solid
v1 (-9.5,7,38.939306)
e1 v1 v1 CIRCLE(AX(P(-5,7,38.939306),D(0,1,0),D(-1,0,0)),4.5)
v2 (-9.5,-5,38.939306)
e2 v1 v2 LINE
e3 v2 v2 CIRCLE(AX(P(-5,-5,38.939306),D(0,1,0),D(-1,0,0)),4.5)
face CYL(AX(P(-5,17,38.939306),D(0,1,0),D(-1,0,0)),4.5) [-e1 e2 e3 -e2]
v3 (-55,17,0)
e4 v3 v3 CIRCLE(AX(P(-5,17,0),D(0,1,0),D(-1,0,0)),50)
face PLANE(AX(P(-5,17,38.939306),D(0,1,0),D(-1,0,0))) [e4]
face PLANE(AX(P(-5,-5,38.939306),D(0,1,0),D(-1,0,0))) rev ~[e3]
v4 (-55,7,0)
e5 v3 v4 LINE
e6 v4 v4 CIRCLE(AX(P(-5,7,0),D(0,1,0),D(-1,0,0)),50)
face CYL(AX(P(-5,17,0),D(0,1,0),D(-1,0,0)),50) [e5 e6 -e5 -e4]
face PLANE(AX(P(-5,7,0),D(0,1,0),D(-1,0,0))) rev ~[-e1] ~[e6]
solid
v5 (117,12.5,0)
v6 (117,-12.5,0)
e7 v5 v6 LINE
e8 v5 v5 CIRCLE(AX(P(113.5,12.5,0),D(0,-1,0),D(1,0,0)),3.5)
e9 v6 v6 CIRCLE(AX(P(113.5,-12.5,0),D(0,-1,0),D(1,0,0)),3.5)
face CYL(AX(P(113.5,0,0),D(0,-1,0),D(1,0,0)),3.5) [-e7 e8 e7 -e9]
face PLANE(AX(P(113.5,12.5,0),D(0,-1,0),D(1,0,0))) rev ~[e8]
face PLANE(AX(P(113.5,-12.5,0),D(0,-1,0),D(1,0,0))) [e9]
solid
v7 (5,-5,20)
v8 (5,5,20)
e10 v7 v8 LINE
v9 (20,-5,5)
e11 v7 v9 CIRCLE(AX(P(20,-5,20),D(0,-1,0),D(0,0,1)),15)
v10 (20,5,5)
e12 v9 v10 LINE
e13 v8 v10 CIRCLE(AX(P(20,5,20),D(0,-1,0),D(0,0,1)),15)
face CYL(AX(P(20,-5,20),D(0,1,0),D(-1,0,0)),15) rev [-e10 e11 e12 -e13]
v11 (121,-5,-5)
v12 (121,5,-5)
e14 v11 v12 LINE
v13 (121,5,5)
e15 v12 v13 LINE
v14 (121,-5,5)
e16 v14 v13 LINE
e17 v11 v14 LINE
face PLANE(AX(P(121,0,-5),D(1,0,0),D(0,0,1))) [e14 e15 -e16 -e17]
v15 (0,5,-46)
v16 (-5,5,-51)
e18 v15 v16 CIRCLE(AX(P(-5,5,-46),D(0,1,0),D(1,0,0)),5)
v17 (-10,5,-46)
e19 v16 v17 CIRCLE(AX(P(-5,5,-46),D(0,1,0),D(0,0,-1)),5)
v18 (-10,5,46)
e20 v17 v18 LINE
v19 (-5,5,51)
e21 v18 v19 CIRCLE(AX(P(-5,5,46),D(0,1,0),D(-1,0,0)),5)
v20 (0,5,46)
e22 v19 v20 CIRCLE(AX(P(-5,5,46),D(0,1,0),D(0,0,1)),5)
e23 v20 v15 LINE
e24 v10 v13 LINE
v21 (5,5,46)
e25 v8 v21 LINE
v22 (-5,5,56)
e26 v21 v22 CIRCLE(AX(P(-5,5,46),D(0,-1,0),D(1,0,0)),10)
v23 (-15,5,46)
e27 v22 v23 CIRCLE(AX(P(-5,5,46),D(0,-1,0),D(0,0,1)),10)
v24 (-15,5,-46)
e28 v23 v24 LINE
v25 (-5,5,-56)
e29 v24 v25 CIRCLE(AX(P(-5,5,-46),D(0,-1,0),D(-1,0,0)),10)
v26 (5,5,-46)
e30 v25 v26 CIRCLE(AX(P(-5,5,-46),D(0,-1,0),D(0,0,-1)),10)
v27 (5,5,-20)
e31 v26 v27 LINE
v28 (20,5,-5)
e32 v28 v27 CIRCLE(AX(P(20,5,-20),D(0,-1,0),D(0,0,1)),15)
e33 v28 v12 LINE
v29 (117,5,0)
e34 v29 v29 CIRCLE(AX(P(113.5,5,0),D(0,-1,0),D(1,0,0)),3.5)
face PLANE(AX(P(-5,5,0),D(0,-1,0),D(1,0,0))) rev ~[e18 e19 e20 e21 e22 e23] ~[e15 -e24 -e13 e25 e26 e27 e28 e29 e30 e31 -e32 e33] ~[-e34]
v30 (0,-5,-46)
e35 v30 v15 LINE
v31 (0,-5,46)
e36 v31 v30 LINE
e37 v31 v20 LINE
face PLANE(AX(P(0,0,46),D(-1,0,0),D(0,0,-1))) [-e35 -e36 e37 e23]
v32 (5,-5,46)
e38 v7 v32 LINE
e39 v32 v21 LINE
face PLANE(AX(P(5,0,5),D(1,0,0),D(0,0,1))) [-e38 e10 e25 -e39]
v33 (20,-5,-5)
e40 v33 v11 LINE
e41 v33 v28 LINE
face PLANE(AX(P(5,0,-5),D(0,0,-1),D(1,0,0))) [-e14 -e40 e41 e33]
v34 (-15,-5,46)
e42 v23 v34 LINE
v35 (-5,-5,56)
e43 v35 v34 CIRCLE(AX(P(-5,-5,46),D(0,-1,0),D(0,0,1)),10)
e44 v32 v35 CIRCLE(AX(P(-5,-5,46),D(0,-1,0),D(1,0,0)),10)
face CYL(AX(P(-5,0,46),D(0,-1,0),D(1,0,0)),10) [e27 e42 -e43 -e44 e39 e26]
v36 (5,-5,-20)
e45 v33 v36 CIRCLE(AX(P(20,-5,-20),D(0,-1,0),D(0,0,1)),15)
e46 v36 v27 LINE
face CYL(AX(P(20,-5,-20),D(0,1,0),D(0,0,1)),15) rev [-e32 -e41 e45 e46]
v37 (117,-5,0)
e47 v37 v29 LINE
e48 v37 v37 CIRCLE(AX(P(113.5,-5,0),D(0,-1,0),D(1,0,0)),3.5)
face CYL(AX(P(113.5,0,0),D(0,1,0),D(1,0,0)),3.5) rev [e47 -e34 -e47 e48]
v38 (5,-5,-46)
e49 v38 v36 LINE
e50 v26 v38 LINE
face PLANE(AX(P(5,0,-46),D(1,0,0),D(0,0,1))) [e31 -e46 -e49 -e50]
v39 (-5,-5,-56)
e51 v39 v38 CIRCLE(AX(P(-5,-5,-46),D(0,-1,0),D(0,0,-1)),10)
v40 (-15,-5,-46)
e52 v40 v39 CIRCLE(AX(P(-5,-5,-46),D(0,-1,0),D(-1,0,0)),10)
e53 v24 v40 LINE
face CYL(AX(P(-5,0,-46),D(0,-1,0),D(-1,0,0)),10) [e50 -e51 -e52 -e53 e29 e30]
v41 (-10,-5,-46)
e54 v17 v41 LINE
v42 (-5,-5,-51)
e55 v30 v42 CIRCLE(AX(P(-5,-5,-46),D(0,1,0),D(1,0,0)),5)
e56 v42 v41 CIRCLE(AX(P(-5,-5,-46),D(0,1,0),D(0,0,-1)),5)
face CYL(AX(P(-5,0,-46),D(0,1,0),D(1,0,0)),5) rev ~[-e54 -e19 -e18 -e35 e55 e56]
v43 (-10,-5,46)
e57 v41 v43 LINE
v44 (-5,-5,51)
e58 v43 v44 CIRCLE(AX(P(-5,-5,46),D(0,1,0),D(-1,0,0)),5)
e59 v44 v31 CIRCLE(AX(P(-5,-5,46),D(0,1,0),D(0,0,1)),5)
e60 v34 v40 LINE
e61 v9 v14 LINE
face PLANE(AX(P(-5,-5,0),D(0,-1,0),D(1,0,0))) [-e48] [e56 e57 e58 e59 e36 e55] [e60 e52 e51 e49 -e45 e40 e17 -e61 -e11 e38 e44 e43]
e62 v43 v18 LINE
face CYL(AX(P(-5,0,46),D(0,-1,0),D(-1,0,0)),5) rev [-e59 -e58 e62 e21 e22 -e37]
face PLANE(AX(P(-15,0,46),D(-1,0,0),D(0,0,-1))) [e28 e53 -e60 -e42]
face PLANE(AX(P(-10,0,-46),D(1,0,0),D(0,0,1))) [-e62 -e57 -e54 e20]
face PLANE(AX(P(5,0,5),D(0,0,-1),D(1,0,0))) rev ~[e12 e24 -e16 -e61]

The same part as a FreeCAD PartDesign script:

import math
import FreeCAD as App
import Part
import Sketcher
Q = App.Units.Quantity


def edges_at(feature, points):
    """Names of the edges that pass closest to the given points."""
    edges = feature.Shape.Edges
    near = lambda p: min(range(len(edges)), key=lambda i: edges[i].distToShape(Part.Vertex(*p))[0])
    return sorted({f"Edge{near(p) + 1}" for p in points})

doc = App.newDocument("Part")
params = doc.addObject("Spreadsheet::Sheet", "Params")
for row, (alias, value) in enumerate([
    ("sketch1_diameter", "7 mm"),
    ("sketch1_radius", "10 mm"),
    ("sketch1_radius2", "5 mm"),
    ("sketch1_width", "116 mm"),
    ("sketch1_height", "92 mm"),
    ("pad1_length", "10 mm"),
    ("fillet_radius", "15 mm"),
    ("sketch2_diameter", "100 mm"),
    ("pad2_length", "10 mm"),
    ("sketch3_diameter", "9 mm"),
    ("pad3_length", "22 mm"),
    ("sketch4_diameter", "7 mm"),
    ("pad4_length", "25 mm"),
], start=1):
    params.set(f"A{row}", alias)
    params.set(f"B{row}", "=" + value)
    params.setAlias(f"B{row}", alias)

body = doc.addObject("PartDesign::Body", "Body")

sketch1 = body.newObject("Sketcher::SketchObject", "Sketch")
sketch1.AttachmentSupport = (doc.getObject("XZ_Plane"), [""])
sketch1.MapMode = "FlatFace"
sketch1.addGeometry(Part.ArcOfCircle(Part.Circle(App.Vector(-5, 46, 0), App.Vector(0, 0, 1), 10), math.radians(0), math.radians(90)), False)
sketch1.addGeometry(Part.ArcOfCircle(Part.Circle(App.Vector(-5, 46, 0), App.Vector(0, 0, 1), 10), math.radians(90), math.radians(180)), False)
sketch1.addGeometry(Part.LineSegment(App.Vector(-15, 46, 0), App.Vector(-15, -46, 0)), False)
sketch1.addGeometry(Part.ArcOfCircle(Part.Circle(App.Vector(-5, -46, 0), App.Vector(0, 0, 1), 10), math.radians(180), math.radians(270)), False)
sketch1.addGeometry(Part.ArcOfCircle(Part.Circle(App.Vector(-5, -46, 0), App.Vector(0, 0, 1), 10), math.radians(-90), math.radians(0)), False)
sketch1.addGeometry(Part.LineSegment(App.Vector(5, -46, 0), App.Vector(5, -5, 0)), False)
sketch1.addGeometry(Part.LineSegment(App.Vector(5, -5, 0), App.Vector(121, -5, 0)), False)
sketch1.addGeometry(Part.LineSegment(App.Vector(121, -5, 0), App.Vector(121, 5, 0)), False)
sketch1.addGeometry(Part.LineSegment(App.Vector(121, 5, 0), App.Vector(5, 5, 0)), False)
sketch1.addGeometry(Part.LineSegment(App.Vector(5, 5, 0), App.Vector(5, 46, 0)), False)
sketch1.addGeometry(Part.ArcOfCircle(Part.Circle(App.Vector(-5, 46, 0), App.Vector(0, 0, 1), 5), math.radians(90), math.radians(180)), False)
sketch1.addGeometry(Part.ArcOfCircle(Part.Circle(App.Vector(-5, 46, 0), App.Vector(0, 0, 1), 5), math.radians(0), math.radians(90)), False)
sketch1.addGeometry(Part.LineSegment(App.Vector(0, 46, 0), App.Vector(0, -46, 0)), False)
sketch1.addGeometry(Part.ArcOfCircle(Part.Circle(App.Vector(-5, -46, 0), App.Vector(0, 0, 1), 5), math.radians(-90), math.radians(0)), False)
sketch1.addGeometry(Part.ArcOfCircle(Part.Circle(App.Vector(-5, -46, 0), App.Vector(0, 0, 1), 5), math.radians(180), math.radians(270)), False)
sketch1.addGeometry(Part.LineSegment(App.Vector(-10, -46, 0), App.Vector(-10, 46, 0)), False)
sketch1.addGeometry(Part.Circle(App.Vector(113.5, 0, 0), App.Vector(0, 0, 1), 3.5), False)
sketch1.addConstraint(Sketcher.Constraint("Tangent", 0, 2, 1, 1))
sketch1.addConstraint(Sketcher.Constraint("Tangent", 1, 2, 2, 1))
sketch1.addConstraint(Sketcher.Constraint("Tangent", 2, 2, 3, 1))
sketch1.addConstraint(Sketcher.Constraint("Tangent", 3, 2, 4, 1))
sketch1.addConstraint(Sketcher.Constraint("Tangent", 4, 2, 5, 1))
sketch1.addConstraint(Sketcher.Constraint("Coincident", 5, 2, 6, 1))
sketch1.addConstraint(Sketcher.Constraint("Coincident", 6, 2, 7, 1))
sketch1.addConstraint(Sketcher.Constraint("Coincident", 7, 2, 8, 1))
sketch1.addConstraint(Sketcher.Constraint("Coincident", 8, 2, 9, 1))
sketch1.addConstraint(Sketcher.Constraint("Tangent", 9, 2, 0, 1))
sketch1.addConstraint(Sketcher.Constraint("Tangent", 10, 1, 11, 2))
sketch1.addConstraint(Sketcher.Constraint("Tangent", 11, 1, 12, 1))
sketch1.addConstraint(Sketcher.Constraint("Tangent", 12, 2, 13, 2))
sketch1.addConstraint(Sketcher.Constraint("Tangent", 13, 1, 14, 2))
sketch1.addConstraint(Sketcher.Constraint("Tangent", 14, 1, 15, 1))
sketch1.addConstraint(Sketcher.Constraint("Tangent", 15, 2, 10, 2))
sketch1.addConstraint(Sketcher.Constraint("Vertical", 2))
sketch1.addConstraint(Sketcher.Constraint("Vertical", 5))
sketch1.addConstraint(Sketcher.Constraint("Horizontal", 6))
sketch1.addConstraint(Sketcher.Constraint("Vertical", 7))
sketch1.addConstraint(Sketcher.Constraint("Horizontal", 8))
sketch1.addConstraint(Sketcher.Constraint("Vertical", 9))
sketch1.addConstraint(Sketcher.Constraint("Vertical", 12))
sketch1.addConstraint(Sketcher.Constraint("Vertical", 15))
sketch1.addConstraint(Sketcher.Constraint("Coincident", 10, 3, 0, 3))
sketch1.addConstraint(Sketcher.Constraint("Coincident", 13, 3, 3, 3))
sketch1.addConstraint(Sketcher.Constraint("Equal", 0, 1))
sketch1.addConstraint(Sketcher.Constraint("Equal", 1, 3))
sketch1.addConstraint(Sketcher.Constraint("Equal", 3, 4))
sketch1.addConstraint(Sketcher.Constraint("Equal", 10, 11))
sketch1.addConstraint(Sketcher.Constraint("Symmetric", 11, 1, 12, 2, -1, 1))
sketch1.addConstraint(Sketcher.Constraint("PointOnObject", 16, 3, -1))
sketch1.addConstraint(Sketcher.Constraint("Vertical", 14, 3, 0, 2))
sketch1.addConstraint(Sketcher.Constraint("Vertical", 0, 2, 3, 2))
sketch1.addConstraint(Sketcher.Constraint("Vertical", 3, 2, 10, 1))
sketch1.addConstraint(Sketcher.Constraint("Vertical", 10, 1, 13, 1))
sketch1.addConstraint(Sketcher.Constraint("Equal", 5, 9))
sketch1.addConstraint(Sketcher.Constraint("Diameter", 16, Q("7 mm")))
sketch1.addConstraint(Sketcher.Constraint("Radius", 0, Q("10 mm")))
sketch1.addConstraint(Sketcher.Constraint("Radius", 10, Q("5 mm")))
sketch1.addConstraint(Sketcher.Constraint("DistanceX", 6, 1, 6, 2, Q("116 mm")))
sketch1.addConstraint(Sketcher.Constraint("DistanceY", 2, 2, 2, 1, Q("92 mm")))
sketch1.addConstraint(Sketcher.Constraint("DistanceY", 5, 1, 5, 2, Q("41 mm")))
sketch1.addConstraint(Sketcher.Constraint("DistanceX", -1, 1, 16, 3, Q("113.5 mm")))
sketch1.setExpression("Constraints[37]", "Params.sketch1_diameter")
sketch1.setExpression("Constraints[38]", "Params.sketch1_radius")
sketch1.setExpression("Constraints[39]", "Params.sketch1_radius2")
sketch1.setExpression("Constraints[40]", "Params.sketch1_width")
sketch1.setExpression("Constraints[41]", "Params.sketch1_height")
pad1 = body.newObject("PartDesign::Pad", "Pad")
pad1.Profile = sketch1
pad1.setExpression("Length", "Params.pad1_length")
pad1.Midplane = True
doc.recompute()

fillet = body.newObject("PartDesign::Fillet", "Fillet")
fillet.Base = (pad1, edges_at(pad1, [(5, 0, 5), (5, 0, -5)]))
fillet.setExpression("Radius", "Params.fillet_radius")
body2 = doc.addObject("PartDesign::Body", "Body001")

sketch2 = body2.newObject("Sketcher::SketchObject", "Sketch001")
sketch2.AttachmentSupport = (doc.getObject("XZ_Plane001"), [""])
sketch2.MapMode = "FlatFace"
sketch2.AttachmentOffset = App.Placement(App.Vector(0, 0, -17), App.Rotation())
sketch2.addGeometry(Part.Circle(App.Vector(-5, 0, 0), App.Vector(0, 0, 1), 50), False)
sketch2.addConstraint(Sketcher.Constraint("PointOnObject", 0, 3, -1))
sketch2.addConstraint(Sketcher.Constraint("Diameter", 0, Q("100 mm")))
sketch2.addConstraint(Sketcher.Constraint("DistanceX", 0, 3, -1, 1, Q("5 mm")))
sketch2.setExpression("Constraints[1]", "Params.sketch2_diameter")
pad2 = body2.newObject("PartDesign::Pad", "Pad001")
pad2.Profile = sketch2
pad2.setExpression("Length", "Params.pad2_length")

sketch3 = body2.newObject("Sketcher::SketchObject", "Sketch002")
sketch3.AttachmentSupport = (doc.getObject("XZ_Plane001"), [""])
sketch3.MapMode = "FlatFace"
sketch3.AttachmentOffset = App.Placement(App.Vector(0, 0, -17), App.Rotation())
sketch3.addGeometry(Part.Circle(App.Vector(-5, 38.9, 0), App.Vector(0, 0, 1), 4.5), False)
sketch3.addConstraint(Sketcher.Constraint("Diameter", 0, Q("9 mm")))
sketch3.addConstraint(Sketcher.Constraint("DistanceX", 0, 3, -1, 1, Q("5 mm")))
sketch3.addConstraint(Sketcher.Constraint("DistanceY", -1, 1, 0, 3, Q("38.939306 mm")))
sketch3.setExpression("Constraints[0]", "Params.sketch3_diameter")
pad3 = body2.newObject("PartDesign::Pad", "Pad002")
pad3.Profile = sketch3
pad3.setExpression("Length", "Params.pad3_length")
body3 = doc.addObject("PartDesign::Body", "Body002")

sketch4 = body3.newObject("Sketcher::SketchObject", "Sketch003")
sketch4.AttachmentSupport = (doc.getObject("XZ_Plane002"), [""])
sketch4.MapMode = "FlatFace"
sketch4.addGeometry(Part.Circle(App.Vector(113.5, 0, 0), App.Vector(0, 0, 1), 3.5), False)
sketch4.addConstraint(Sketcher.Constraint("PointOnObject", 0, 3, -1))
sketch4.addConstraint(Sketcher.Constraint("Diameter", 0, Q("7 mm")))
sketch4.addConstraint(Sketcher.Constraint("DistanceX", -1, 1, 0, 3, Q("113.5 mm")))
sketch4.setExpression("Constraints[1]", "Params.sketch4_diameter")
pad4 = body3.newObject("PartDesign::Pad", "Pad003")
pad4.Profile = sketch4
pad4.setExpression("Length", "Params.pad4_length")
pad4.Midplane = True

doc.recompute()
